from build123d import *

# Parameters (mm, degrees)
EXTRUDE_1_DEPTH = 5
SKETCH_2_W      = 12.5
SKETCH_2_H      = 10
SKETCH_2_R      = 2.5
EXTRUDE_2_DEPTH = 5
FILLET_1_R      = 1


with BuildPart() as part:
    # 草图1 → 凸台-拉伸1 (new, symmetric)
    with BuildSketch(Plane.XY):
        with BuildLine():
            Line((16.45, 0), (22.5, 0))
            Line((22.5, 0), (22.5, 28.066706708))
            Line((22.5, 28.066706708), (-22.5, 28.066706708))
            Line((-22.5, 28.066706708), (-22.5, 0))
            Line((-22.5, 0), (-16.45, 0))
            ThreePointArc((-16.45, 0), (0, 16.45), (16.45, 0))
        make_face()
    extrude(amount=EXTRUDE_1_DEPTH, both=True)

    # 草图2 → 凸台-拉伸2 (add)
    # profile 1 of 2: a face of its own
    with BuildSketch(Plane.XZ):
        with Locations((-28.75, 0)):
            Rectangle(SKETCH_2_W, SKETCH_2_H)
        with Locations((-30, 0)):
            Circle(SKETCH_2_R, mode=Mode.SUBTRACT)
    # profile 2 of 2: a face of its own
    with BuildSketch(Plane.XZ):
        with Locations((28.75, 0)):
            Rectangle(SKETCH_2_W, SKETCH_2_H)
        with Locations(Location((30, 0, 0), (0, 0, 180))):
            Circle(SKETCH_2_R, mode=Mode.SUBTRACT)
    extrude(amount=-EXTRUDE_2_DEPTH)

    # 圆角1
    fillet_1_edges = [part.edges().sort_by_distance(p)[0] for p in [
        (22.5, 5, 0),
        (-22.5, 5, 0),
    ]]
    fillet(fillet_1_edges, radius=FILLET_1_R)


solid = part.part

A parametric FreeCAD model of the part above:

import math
import FreeCAD as App
import Part
import Sketcher
from FreeCAD import Vector


def edges_at(feature, points):
    """Names of the edges that pass closest to the given points."""
    edges = feature.Shape.Edges
    near = lambda p: min(range(len(edges)), key=lambda i: edges[i].distToShape(Part.Vertex(*p))[0])
    return sorted({f"Edge{near(p) + 1}" for p in points})


def add_polygon(sketch, points):
    """Adds a closed chain of lines whose ends are joined by coincident constraints."""
    first, n = sketch.GeometryCount, len(points)
    for a, b in zip(points, points[1:] + points[:1]):
        sketch.addGeometry(Part.LineSegment(App.Vector(*a, 0), App.Vector(*b, 0)), False)
    for i in range(n):
        sketch.addConstraint(Sketcher.Constraint("Coincident", first + i, 2, first + (i + 1) % n, 1))

doc = App.newDocument("Part")
body = doc.addObject("PartDesign::Body", "Body")

# Sketch on XY plane
sketch1 = doc.addObject("Sketcher::SketchObject", "Sketch")
body.addObject(sketch1)
sketch1.AttachmentSupport = (doc.XY_Plane, [""])
sketch1.MapMode = "FlatFace"
sketch1.addGeometry([
    Part.LineSegment(Vector(16, 0, 0), Vector(22, 0, 0)),  # 0
    Part.LineSegment(Vector(22, 0, 0), Vector(22, 28, 0)),  # 1
    Part.LineSegment(Vector(22, 28, 0), Vector(-22, 28, 0)),  # 2
    Part.LineSegment(Vector(-22, 28, 0), Vector(-22, 0, 0)),  # 3
    Part.LineSegment(Vector(-22, 0, 0), Vector(-16, 0, 0)),  # 4
    Part.ArcOfCircle(Part.Circle(Vector(0, 0, 0), Vector(0, 0, 1), 16), math.radians(0), math.radians(180)),  # 5
], False)
sketch1.addConstraint([
    Sketcher.Constraint("Coincident", 0, 2, 1, 1),
    Sketcher.Constraint("Coincident", 1, 2, 2, 1),
    Sketcher.Constraint("Coincident", 2, 2, 3, 1),
    Sketcher.Constraint("Coincident", 3, 2, 4, 1),
    Sketcher.Constraint("Coincident", 4, 2, 5, 2),
    Sketcher.Constraint("Coincident", 5, 1, 0, 1),
    Sketcher.Constraint("Horizontal", 0),
    Sketcher.Constraint("Vertical", 1),
    Sketcher.Constraint("Horizontal", 2),
    Sketcher.Constraint("Vertical", 3),
    Sketcher.Constraint("Horizontal", 4),
    Sketcher.Constraint("Coincident", 5, 3, -1, 1),
    Sketcher.Constraint("Symmetric", 0, 2, 3, 2, -1, 1),
    Sketcher.Constraint("PointOnObject", 0, 2, -1),
    Sketcher.Constraint("DistanceX", 2, 2, 2, 1, 45.0),
    Sketcher.Constraint("Radius", 5, 16.45),
    Sketcher.Constraint("DistanceY", 1, 1, 1, 2, 28.066707),
])
pad1 = doc.addObject("PartDesign::Pad", "Pad")
body.addObject(pad1)
pad1.Profile = sketch1
pad1.Length = 10
pad1.Midplane = True

# Sketch on XZ plane
sketch2 = doc.addObject("Sketcher::SketchObject", "Sketch001")
body.addObject(sketch2)
sketch2.AttachmentSupport = (doc.XZ_Plane, [""])
sketch2.MapMode = "FlatFace"
add_polygon(sketch2, [(-35, 5), (-35, -5), (-22.5, -5), (-22.5, 5)])  # lines 0-3
sketch2.addGeometry(Part.Circle(Vector(-30, 0, 0), Vector(0, 0, 1), 2.5), False)  # 4
add_polygon(sketch2, [(22.5, 5), (22.5, -5), (35, -5), (35, 5)])  # lines 5-8
sketch2.addGeometry(Part.Circle(Vector(30, 0, 0), Vector(0, 0, 1), 2.5), False)  # 9
sketch2.addConstraint([
    Sketcher.Constraint("Vertical", 0),
    Sketcher.Constraint("Horizontal", 1),
    Sketcher.Constraint("Vertical", 2),
    Sketcher.Constraint("Horizontal", 3),
    Sketcher.Constraint("Vertical", 5),
    Sketcher.Constraint("Horizontal", 6),
    Sketcher.Constraint("Vertical", 7),
    Sketcher.Constraint("Horizontal", 8),
    Sketcher.Constraint("Equal", 4, 9),
    Sketcher.Constraint("Symmetric", 4, 3, 9, 3, -1, 1),
    Sketcher.Constraint("Symmetric", 2, 2, 5, 2, -1, 1),
    Sketcher.Constraint("Symmetric", 0, 2, 7, 2, -1, 1),
    Sketcher.Constraint("PointOnObject", 4, 3, -1),
    Sketcher.Constraint("Horizontal", 1, 2, 5, 2),
    Sketcher.Constraint("Diameter", 4, 5.0),
    Sketcher.Constraint("DistanceY", 0, 2, 0, 1, 10.0),
    Sketcher.Constraint("DistanceX", 1, 1, 1, 2, 12.5),
    Sketcher.Constraint("DistanceX", 4, 3, -1, 1, 30.0),
    Sketcher.Constraint("DistanceX", 0, 2, -1, 1, 35.0),
])
pad2 = doc.addObject("PartDesign::Pad", "Pad001")
body.addObject(pad2)
pad2.Profile = sketch2
pad2.Length = 5
pad2.Reversed = True
doc.recompute()

fillet = doc.addObject("PartDesign::Fillet", "Fillet")
body.addObject(fillet)
fillet.Base = (pad2, edges_at(pad2, [(22.5, 5, 0), (-22.5, 5, 0)]))
fillet.Radius = 1

doc.recompute()
